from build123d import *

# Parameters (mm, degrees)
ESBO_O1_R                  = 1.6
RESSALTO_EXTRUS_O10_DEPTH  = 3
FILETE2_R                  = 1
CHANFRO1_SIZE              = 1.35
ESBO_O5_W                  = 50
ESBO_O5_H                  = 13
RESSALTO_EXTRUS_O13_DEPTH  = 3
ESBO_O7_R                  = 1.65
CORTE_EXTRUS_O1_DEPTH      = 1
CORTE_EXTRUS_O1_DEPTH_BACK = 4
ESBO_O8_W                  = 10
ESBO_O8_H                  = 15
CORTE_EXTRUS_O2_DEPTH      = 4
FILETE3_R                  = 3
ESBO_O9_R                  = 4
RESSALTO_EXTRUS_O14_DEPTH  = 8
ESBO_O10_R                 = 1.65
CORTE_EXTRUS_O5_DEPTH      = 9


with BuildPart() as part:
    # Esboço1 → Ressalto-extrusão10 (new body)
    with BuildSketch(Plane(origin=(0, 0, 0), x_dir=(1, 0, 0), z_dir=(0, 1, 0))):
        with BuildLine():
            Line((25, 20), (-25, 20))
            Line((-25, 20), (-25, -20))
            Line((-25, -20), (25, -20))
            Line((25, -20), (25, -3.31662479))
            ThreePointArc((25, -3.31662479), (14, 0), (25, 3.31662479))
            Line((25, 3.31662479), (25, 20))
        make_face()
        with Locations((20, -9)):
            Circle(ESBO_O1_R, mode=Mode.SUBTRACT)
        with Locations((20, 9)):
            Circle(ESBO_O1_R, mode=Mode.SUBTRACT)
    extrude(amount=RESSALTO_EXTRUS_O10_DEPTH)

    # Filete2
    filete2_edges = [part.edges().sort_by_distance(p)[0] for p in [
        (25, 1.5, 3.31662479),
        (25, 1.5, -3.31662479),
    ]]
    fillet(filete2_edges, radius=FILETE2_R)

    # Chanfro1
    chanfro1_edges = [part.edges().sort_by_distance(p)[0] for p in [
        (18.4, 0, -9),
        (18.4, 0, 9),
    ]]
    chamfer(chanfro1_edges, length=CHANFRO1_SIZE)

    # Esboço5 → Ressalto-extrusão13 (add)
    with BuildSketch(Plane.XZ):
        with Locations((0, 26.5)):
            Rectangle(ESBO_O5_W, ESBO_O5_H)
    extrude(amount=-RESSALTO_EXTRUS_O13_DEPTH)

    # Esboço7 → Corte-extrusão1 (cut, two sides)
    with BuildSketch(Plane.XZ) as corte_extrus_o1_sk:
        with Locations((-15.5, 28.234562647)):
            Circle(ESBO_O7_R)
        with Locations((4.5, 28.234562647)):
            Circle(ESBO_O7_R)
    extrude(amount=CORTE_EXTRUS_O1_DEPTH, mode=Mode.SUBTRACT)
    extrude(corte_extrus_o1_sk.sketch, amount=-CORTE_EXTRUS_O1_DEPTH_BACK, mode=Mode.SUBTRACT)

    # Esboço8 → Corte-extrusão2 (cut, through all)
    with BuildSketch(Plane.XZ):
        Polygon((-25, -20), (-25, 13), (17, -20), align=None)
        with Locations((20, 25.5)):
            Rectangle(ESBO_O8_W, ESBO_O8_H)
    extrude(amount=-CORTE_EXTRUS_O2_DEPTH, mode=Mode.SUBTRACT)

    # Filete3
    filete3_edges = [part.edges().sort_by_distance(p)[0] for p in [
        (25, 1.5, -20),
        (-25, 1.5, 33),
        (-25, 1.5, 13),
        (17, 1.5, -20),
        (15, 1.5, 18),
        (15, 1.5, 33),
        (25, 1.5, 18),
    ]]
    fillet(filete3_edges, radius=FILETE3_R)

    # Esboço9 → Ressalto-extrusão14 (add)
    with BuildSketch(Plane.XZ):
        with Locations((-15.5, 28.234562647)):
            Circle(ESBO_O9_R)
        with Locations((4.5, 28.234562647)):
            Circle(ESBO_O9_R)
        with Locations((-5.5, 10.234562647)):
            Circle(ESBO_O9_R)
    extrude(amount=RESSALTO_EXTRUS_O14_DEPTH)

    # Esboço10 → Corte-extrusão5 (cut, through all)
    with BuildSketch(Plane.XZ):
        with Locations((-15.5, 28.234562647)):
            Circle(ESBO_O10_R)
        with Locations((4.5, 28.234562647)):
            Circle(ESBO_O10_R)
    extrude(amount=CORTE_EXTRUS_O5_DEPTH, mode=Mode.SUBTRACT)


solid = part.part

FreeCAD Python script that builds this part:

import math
import FreeCAD as App
import Part
import Sketcher

V = App.Vector
Q = App.Units.Quantity


def edges_at(feature, points):
    """Names of the edges that pass closest to the given points."""
    edges = feature.Shape.Edges
    near = lambda p: min(range(len(edges)), key=lambda i: edges[i].distToShape(Part.Vertex(*p))[0])
    return sorted({f"Edge{near(p) + 1}" for p in points})


def add_polygon(sketch, points):
    """Adds a closed chain of lines whose ends are joined by coincident constraints."""
    first, n = sketch.GeometryCount, len(points)
    for a, b in zip(points, points[1:] + points[:1]):
        sketch.addGeometry(Part.LineSegment(App.Vector(*a, 0), App.Vector(*b, 0)), False)
    for i in range(n):
        sketch.addConstraint(Sketcher.Constraint("Coincident", first + i, 2, first + (i + 1) % n, 1))

doc = App.newDocument("Part")
params = doc.addObject("Spreadsheet::Sheet", "Params")
for row, (alias, value) in enumerate([
    ("sketch1_radius", "6 mm"),
    ("sketch1_diameter", "3.2 mm"),
    ("sketch1_width", "50 mm"),
    ("sketch1_height", "40 mm"),
    ("pad1_length", "3 mm"),
    ("fillet_radius", "1 mm"),
    ("chamfer_size", "1.35 mm"),
    ("sketch2_width", "50 mm"),
    ("sketch2_height", "13 mm"),
    ("pad2_length", "3 mm"),
    ("sketch3_diameter", "3.3 mm"),
    ("sketch4_width", "42 mm"),
    ("sketch4_width2", "10 mm"),
    ("sketch4_height", "33 mm"),
    ("sketch4_height2", "15 mm"),
    ("fillet2_radius", "3 mm"),
    ("sketch5_diameter", "8 mm"),
    ("pad3_length", "8 mm"),
    ("sketch6_diameter", "3.3 mm"),
], start=1):
    params.set(f"A{row}", alias)
    params.set(f"B{row}", "=" + value)
    params.setAlias(f"B{row}", alias)

body = doc.addObject("PartDesign::Body", "Body")

sketch1 = body.newObject("Sketcher::SketchObject", "Sketch")
sketch1.AttachmentSupport = (doc.getObject("XZ_Plane"), [""])
sketch1.MapMode = "FlatFace"
sketch1.addGeometry([
    Part.LineSegment(V(25, -20, 0), V(-25, -20, 0)),
    Part.LineSegment(V(-25, -20, 0), V(-25, 20, 0)),
    Part.LineSegment(V(-25, 20, 0), V(25, 20, 0)),
    Part.LineSegment(V(25, 20, 0), V(25, 3.316625, 0)),
    Part.ArcOfCircle(Part.Circle(V(20, 0, 0), V(0, 0, 1), 6), math.radians(33.55731), math.radians(326.44269)),
    Part.LineSegment(V(25, -3.316625, 0), V(25, -20, 0)),
    Part.Circle(V(20, 9, 0), V(0, 0, 1), 1.6),
    Part.Circle(V(20, -9, 0), V(0, 0, 1), 1.6),
], False)
sketch1.addConstraint([
    Sketcher.Constraint("Coincident", 0, 2, 1, 1),
    Sketcher.Constraint("Coincident", 1, 2, 2, 1),
    Sketcher.Constraint("Coincident", 2, 2, 3, 1),
    Sketcher.Constraint("Coincident", 3, 2, 4, 1),
    Sketcher.Constraint("Coincident", 4, 2, 5, 1),
    Sketcher.Constraint("Coincident", 5, 2, 0, 1),
    Sketcher.Constraint("Horizontal", 0),
    Sketcher.Constraint("Vertical", 1),
    Sketcher.Constraint("Horizontal", 2),
    Sketcher.Constraint("Vertical", 3),
    Sketcher.Constraint("Vertical", 5),
    Sketcher.Constraint("Equal", 6, 7),
    Sketcher.Constraint("Symmetric", 0, 2, 2, 2, -1, 1),
    Sketcher.Constraint("Symmetric", 6, 3, 7, 3, -1),
    Sketcher.Constraint("Symmetric", 3, 2, 4, 2, -1),
    Sketcher.Constraint("Vertical", 4, 3, 6, 3),
    Sketcher.Constraint("Radius", 4, Q("6 mm")),
    Sketcher.Constraint("Diameter", 6, Q("3.2 mm")),
    Sketcher.Constraint("DistanceX", 0, 2, 0, 1, Q("50 mm")),
    Sketcher.Constraint("DistanceY", 1, 1, 1, 2, Q("40 mm")),
    Sketcher.Constraint("DistanceX", -1, 1, 4, 3, Q("20 mm")),
    Sketcher.Constraint("DistanceY", -1, 1, 6, 3, Q("9 mm")),
])
sketch1.setExpression("Constraints[16]", "Params.sketch1_radius")
sketch1.setExpression("Constraints[17]", "Params.sketch1_diameter")
sketch1.setExpression("Constraints[18]", "Params.sketch1_width")
sketch1.setExpression("Constraints[19]", "Params.sketch1_height")
pad1 = body.newObject("PartDesign::Pad", "Pad")
pad1.Profile = sketch1
pad1.setExpression("Length", "Params.pad1_length")
pad1.Reversed = True
doc.recompute()

fillet = body.newObject("PartDesign::Fillet", "Fillet")
fillet.Base = (pad1, edges_at(pad1, [(25, 1.5, 3.317), (25, 1.5, -3.317)]))
fillet.setExpression("Radius", "Params.fillet_radius")
doc.recompute()

chamfer = body.newObject("PartDesign::Chamfer", "Chamfer")
chamfer.Base = (fillet, edges_at(fillet, [(18.4, 0, -9), (18.4, 0, 9)]))
chamfer.setExpression("Size", "Params.chamfer_size")

sketch2 = body.newObject("Sketcher::SketchObject", "Sketch001")
sketch2.AttachmentSupport = (doc.getObject("XZ_Plane"), [""])
sketch2.MapMode = "FlatFace"
add_polygon(sketch2, [(-25, 33), (-25, 20), (25, 20), (25, 33)])
sketch2.addConstraint([
    Sketcher.Constraint("Vertical", 0),
    Sketcher.Constraint("Horizontal", 1),
    Sketcher.Constraint("Vertical", 2),
    Sketcher.Constraint("Horizontal", 3),
    Sketcher.Constraint("DistanceX", 1, 1, 1, 2, Q("50 mm")),
    Sketcher.Constraint("DistanceY", 0, 2, 0, 1, Q("13 mm")),
    Sketcher.Constraint("DistanceX", 0, 2, -1, 1, Q("25 mm")),
    Sketcher.Constraint("DistanceY", -1, 1, 0, 2, Q("20 mm")),
])
sketch2.setExpression("Constraints[8]", "Params.sketch2_width")
sketch2.setExpression("Constraints[9]", "Params.sketch2_height")
pad2 = body.newObject("PartDesign::Pad", "Pad001")
pad2.Profile = sketch2
pad2.setExpression("Length", "Params.pad2_length")
pad2.Reversed = True

sketch3 = body.newObject("Sketcher::SketchObject", "Sketch002")
sketch3.AttachmentSupport = (doc.getObject("XZ_Plane"), [""])
sketch3.MapMode = "FlatFace"
sketch3.addGeometry([
    Part.Circle(V(-15.5, 28.234563, 0), V(0, 0, 1), 1.65),
    Part.Circle(V(4.5, 28.234563, 0), V(0, 0, 1), 1.65),
], False)
sketch3.addConstraint([
    Sketcher.Constraint("Equal", 0, 1),
    Sketcher.Constraint("Horizontal", 0, 3, 1, 3),
    Sketcher.Constraint("Diameter", 0, Q("3.3 mm")),
    Sketcher.Constraint("DistanceX", 0, 3, 1, 3, Q("20 mm")),
    Sketcher.Constraint("DistanceX", 0, 3, -1, 1, Q("15.5 mm")),
    Sketcher.Constraint("DistanceY", -1, 1, 0, 3, Q("28.234563 mm")),
])
sketch3.setExpression("Constraints[2]", "Params.sketch3_diameter")
pocket1 = body.newObject("PartDesign::Pocket", "Pocket")
pocket1.Profile = sketch3
pocket1.Type = "ThroughAll"
pocket1.Midplane = True

sketch4 = body.newObject("Sketcher::SketchObject", "Sketch003")
sketch4.AttachmentSupport = (doc.getObject("XZ_Plane"), [""])
sketch4.MapMode = "FlatFace"
add_polygon(sketch4, [(-25, 13), (-25, -20), (17, -20)])
add_polygon(sketch4, [(15, 33), (15, 18), (25, 18), (25, 33)])
sketch4.addConstraint([
    Sketcher.Constraint("Vertical", 0),
    Sketcher.Constraint("Horizontal", 1),
    Sketcher.Constraint("Vertical", 3),
    Sketcher.Constraint("Horizontal", 4),
    Sketcher.Constraint("Vertical", 5),
    Sketcher.Constraint("Horizontal", 6),
    Sketcher.Constraint("DistanceX", 1, 1, 1, 2, Q("42 mm")),
    Sketcher.Constraint("DistanceX", 4, 1, 4, 2, Q("10 mm")),
    Sketcher.Constraint("DistanceY", 0, 2, 0, 1, Q("33 mm")),
    Sketcher.Constraint("DistanceY", 3, 2, 3, 1, Q("15 mm")),
    Sketcher.Constraint("DistanceX", 0, 2, -1, 1, Q("25 mm")),
    Sketcher.Constraint("DistanceY", 0, 2, -1, 1, Q("20 mm")),
    Sketcher.Constraint("DistanceX", -1, 1, 3, 2, Q("15 mm")),
    Sketcher.Constraint("DistanceY", -1, 1, 3, 2, Q("18 mm")),
])
sketch4.setExpression("Constraints[13]", "Params.sketch4_width")
sketch4.setExpression("Constraints[14]", "Params.sketch4_width2")
sketch4.setExpression("Constraints[15]", "Params.sketch4_height")
sketch4.setExpression("Constraints[16]", "Params.sketch4_height2")
pocket2 = body.newObject("PartDesign::Pocket", "Pocket001")
pocket2.Profile = sketch4
pocket2.Type = "ThroughAll"
doc.recompute()

fillet2 = body.newObject("PartDesign::Fillet", "Fillet001")
fillet2.Base = (pocket2, edges_at(pocket2, [
    (25, 1.5, -20),
    (-25, 1.5, 33),
    (-25, 1.5, 13),
    (17, 1.5, -20),
    (15, 1.5, 18),
    (15, 1.5, 33),
    (25, 1.5, 18),
]))
fillet2.setExpression("Radius", "Params.fillet2_radius")

sketch5 = body.newObject("Sketcher::SketchObject", "Sketch004")
sketch5.AttachmentSupport = (doc.getObject("XZ_Plane"), [""])
sketch5.MapMode = "FlatFace"
sketch5.addGeometry([
    Part.Circle(V(-15.5, 28.234563, 0), V(0, 0, 1), 4),
    Part.Circle(V(4.5, 28.234563, 0), V(0, 0, 1), 4),
    Part.Circle(V(-5.5, 10.234563, 0), V(0, 0, 1), 4),
], False)
sketch5.addConstraint([
    Sketcher.Constraint("Equal", 0, 1),
    Sketcher.Constraint("Equal", 1, 2),
    Sketcher.Constraint("Horizontal", 0, 3, 1, 3),
    Sketcher.Constraint("Diameter", 0, Q("8 mm")),
    Sketcher.Constraint("DistanceX", 0, 3, 1, 3, Q("20 mm")),
    Sketcher.Constraint("DistanceX", 0, 3, 2, 3, Q("10 mm")),
    Sketcher.Constraint("DistanceY", 2, 3, 0, 3, Q("18 mm")),
    Sketcher.Constraint("DistanceX", 0, 3, -1, 1, Q("15.5 mm")),
    Sketcher.Constraint("DistanceY", -1, 1, 0, 3, Q("28.234563 mm")),
])
sketch5.setExpression("Constraints[3]", "Params.sketch5_diameter")
pad3 = body.newObject("PartDesign::Pad", "Pad002")
pad3.Profile = sketch5
pad3.setExpression("Length", "Params.pad3_length")

sketch6 = body.newObject("Sketcher::SketchObject", "Sketch005")
sketch6.AttachmentSupport = (doc.getObject("XZ_Plane"), [""])
sketch6.MapMode = "FlatFace"
sketch6.addGeometry([
    Part.Circle(V(-15.5, 28.234563, 0), V(0, 0, 1), 1.65),
    Part.Circle(V(4.5, 28.234563, 0), V(0, 0, 1), 1.65),
], False)
sketch6.addConstraint([
    Sketcher.Constraint("Equal", 0, 1),
    Sketcher.Constraint("Horizontal", 0, 3, 1, 3),
    Sketcher.Constraint("Diameter", 0, Q("3.3 mm")),
    Sketcher.Constraint("DistanceX", 0, 3, 1, 3, Q("20 mm")),
    Sketcher.Constraint("DistanceX", 0, 3, -1, 1, Q("15.5 mm")),
    Sketcher.Constraint("DistanceY", -1, 1, 0, 3, Q("28.234563 mm")),
])
sketch6.setExpression("Constraints[2]", "Params.sketch6_diameter")
pocket3 = body.newObject("PartDesign::Pocket", "Pocket002")
pocket3.Profile = sketch6
pocket3.Type = "ThroughAll"
pocket3.Reversed = True

doc.recompute()
